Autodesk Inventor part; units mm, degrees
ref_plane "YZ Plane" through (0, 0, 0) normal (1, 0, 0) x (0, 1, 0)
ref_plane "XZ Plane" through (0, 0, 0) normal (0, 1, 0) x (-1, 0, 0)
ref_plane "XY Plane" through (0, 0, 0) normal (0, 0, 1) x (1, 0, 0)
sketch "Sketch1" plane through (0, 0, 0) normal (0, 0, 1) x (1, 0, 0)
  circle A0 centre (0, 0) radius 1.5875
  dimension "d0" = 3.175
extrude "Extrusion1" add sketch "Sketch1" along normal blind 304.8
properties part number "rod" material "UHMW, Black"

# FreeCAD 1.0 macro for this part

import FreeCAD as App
import Part
import Sketcher
from FreeCAD import Vector
Q = App.Units.Quantity

doc = App.newDocument("Part")
params = doc.addObject("Spreadsheet::Sheet", "Params")
for row, (alias, value) in enumerate([
    ("sketch1_diameter", "0.125 in"),
    ("pad1_length", "12 in"),
], start=1):
    params.set(f"A{row}", alias)
    params.set(f"B{row}", "=" + value)
    params.setAlias(f"B{row}", alias)

body = doc.addObject("PartDesign::Body", "Body")

# Sketch on XY plane
sketch1 = doc.addObject("Sketcher::SketchObject", "Sketch")
body.addObject(sketch1)
sketch1.AttachmentSupport = (doc.XY_Plane, [""])
sketch1.MapMode = "FlatFace"
sketch1.addGeometry(Part.Circle(Vector(0, 0, 0), Vector(0, 0, 1), 1.6), False)
sketch1.addConstraint([
    Sketcher.Constraint("Coincident", 0, 3, -1, 1),
    Sketcher.Constraint("Diameter", 0, Q("0.125 in")),
])
sketch1.setExpression("Constraints[1]", "Params.sketch1_diameter")
pad1 = doc.addObject("PartDesign::Pad", "Pad")
body.addObject(pad1)
pad1.Profile = sketch1
pad1.setExpression("Length", "Params.pad1_length")

doc.recompute()
